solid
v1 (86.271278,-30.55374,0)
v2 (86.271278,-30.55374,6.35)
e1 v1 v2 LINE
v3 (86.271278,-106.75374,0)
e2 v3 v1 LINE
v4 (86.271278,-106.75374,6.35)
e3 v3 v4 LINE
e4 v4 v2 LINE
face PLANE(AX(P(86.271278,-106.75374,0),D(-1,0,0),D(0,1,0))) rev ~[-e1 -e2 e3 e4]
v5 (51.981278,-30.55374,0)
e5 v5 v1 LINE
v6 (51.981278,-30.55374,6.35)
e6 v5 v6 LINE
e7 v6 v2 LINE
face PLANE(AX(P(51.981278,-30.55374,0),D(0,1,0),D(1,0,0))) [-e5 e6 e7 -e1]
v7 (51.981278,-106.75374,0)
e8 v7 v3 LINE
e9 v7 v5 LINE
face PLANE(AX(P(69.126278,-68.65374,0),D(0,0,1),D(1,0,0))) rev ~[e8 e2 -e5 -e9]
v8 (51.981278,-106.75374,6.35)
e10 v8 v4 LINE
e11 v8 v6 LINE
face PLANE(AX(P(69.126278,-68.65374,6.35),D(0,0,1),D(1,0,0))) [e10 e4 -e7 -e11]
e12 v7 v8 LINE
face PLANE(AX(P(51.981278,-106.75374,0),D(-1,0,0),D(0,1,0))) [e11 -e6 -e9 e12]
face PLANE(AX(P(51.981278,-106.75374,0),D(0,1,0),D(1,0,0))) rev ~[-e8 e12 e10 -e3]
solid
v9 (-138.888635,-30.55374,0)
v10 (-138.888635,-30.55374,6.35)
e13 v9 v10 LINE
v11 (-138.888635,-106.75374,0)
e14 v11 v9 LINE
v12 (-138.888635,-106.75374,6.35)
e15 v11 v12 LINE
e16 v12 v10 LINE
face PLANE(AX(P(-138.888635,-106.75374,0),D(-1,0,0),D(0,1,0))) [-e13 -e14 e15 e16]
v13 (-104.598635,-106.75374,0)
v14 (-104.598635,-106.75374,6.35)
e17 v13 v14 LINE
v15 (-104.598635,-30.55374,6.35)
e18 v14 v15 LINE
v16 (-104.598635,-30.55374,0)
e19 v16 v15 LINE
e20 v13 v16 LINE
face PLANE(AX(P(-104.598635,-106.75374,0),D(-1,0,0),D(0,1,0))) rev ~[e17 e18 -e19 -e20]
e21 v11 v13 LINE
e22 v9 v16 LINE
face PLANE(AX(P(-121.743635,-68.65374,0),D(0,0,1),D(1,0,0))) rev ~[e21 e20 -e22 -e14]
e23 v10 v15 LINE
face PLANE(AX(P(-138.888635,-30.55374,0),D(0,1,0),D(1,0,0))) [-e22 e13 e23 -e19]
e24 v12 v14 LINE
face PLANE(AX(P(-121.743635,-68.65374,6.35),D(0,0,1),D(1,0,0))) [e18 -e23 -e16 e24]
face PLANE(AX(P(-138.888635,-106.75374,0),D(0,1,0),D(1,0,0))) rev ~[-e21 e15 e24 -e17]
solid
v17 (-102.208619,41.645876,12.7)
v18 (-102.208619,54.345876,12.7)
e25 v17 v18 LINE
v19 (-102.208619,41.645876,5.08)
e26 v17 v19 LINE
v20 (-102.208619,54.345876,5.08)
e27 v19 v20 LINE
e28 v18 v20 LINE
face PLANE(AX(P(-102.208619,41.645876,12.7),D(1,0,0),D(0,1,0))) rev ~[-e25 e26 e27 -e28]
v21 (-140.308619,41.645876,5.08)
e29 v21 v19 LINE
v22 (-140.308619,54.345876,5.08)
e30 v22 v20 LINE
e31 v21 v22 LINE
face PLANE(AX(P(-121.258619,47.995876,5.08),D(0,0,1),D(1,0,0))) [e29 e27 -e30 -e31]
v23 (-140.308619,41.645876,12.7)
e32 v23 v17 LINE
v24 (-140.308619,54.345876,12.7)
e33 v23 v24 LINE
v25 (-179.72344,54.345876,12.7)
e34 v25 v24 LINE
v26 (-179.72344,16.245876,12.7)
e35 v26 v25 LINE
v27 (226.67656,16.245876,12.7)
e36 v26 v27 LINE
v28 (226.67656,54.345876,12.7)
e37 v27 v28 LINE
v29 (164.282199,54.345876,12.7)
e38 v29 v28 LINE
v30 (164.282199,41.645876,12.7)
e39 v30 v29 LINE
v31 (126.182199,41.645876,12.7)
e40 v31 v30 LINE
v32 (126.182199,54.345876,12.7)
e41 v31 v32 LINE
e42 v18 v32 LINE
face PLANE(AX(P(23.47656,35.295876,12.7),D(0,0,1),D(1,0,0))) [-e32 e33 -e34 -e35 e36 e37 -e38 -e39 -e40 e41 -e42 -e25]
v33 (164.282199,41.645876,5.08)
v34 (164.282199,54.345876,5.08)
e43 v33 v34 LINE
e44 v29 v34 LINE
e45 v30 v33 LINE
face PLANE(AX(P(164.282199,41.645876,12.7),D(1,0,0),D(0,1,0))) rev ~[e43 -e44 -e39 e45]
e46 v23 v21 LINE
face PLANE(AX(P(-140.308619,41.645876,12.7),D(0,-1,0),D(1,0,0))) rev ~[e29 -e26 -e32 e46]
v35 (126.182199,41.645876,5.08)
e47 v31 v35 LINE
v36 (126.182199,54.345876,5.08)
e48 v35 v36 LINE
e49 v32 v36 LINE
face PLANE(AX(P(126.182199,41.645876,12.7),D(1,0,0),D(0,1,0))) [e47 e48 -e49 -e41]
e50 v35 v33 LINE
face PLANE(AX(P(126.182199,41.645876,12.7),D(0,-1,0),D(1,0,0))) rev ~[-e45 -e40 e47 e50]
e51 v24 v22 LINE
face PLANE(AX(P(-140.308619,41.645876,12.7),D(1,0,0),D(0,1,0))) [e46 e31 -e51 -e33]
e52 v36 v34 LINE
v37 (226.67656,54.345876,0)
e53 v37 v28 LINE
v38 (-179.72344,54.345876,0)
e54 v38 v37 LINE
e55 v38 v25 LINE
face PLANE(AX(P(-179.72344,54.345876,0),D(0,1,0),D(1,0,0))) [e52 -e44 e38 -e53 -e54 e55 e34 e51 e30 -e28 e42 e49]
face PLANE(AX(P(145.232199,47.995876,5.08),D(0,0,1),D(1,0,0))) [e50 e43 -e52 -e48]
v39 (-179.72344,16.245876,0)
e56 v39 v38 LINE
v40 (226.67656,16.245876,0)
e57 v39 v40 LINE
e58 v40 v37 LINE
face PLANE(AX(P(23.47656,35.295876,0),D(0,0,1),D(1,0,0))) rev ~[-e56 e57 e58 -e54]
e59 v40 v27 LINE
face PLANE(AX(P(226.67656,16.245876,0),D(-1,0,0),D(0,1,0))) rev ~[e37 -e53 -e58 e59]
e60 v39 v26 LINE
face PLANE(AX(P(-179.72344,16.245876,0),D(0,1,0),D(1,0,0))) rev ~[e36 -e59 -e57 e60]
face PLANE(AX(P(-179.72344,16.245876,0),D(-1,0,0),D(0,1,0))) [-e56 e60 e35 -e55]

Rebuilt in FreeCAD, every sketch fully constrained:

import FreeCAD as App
import Part
import Sketcher
from FreeCAD import Vector
Q = App.Units.Quantity

doc = App.newDocument("Part")
body = doc.addObject("PartDesign::Body", "Body")

# Sketch on XY plane
sketch1 = body.newObject("Sketcher::SketchObject", "Sketch")
sketch1.AttachmentSupport = (doc.getObject("XY_Plane"), [""])
sketch1.MapMode = "FlatFace"
sketch1.addGeometry([
    Part.LineSegment(Vector(-180, 54, 0), Vector(-180, 16, 0)),
    Part.LineSegment(Vector(-180, 16, 0), Vector(227, 16, 0)),
    Part.LineSegment(Vector(227, 16, 0), Vector(227, 54, 0)),
    Part.LineSegment(Vector(227, 54, 0), Vector(-180, 54, 0)),
], False)
sketch1.addConstraint([
    Sketcher.Constraint("Coincident", 0, 2, 1, 1),
    Sketcher.Constraint("Coincident", 1, 2, 2, 1),
    Sketcher.Constraint("Coincident", 2, 2, 3, 1),
    Sketcher.Constraint("Coincident", 3, 2, 0, 1),
    Sketcher.Constraint("Vertical", 0),
    Sketcher.Constraint("Horizontal", 1),
    Sketcher.Constraint("Vertical", 2),
    Sketcher.Constraint("Horizontal", 3),
    Sketcher.Constraint("DistanceX", 1, 1, 1, 2, Q("16 in")),
    Sketcher.Constraint("DistanceY", 0, 2, 0, 1, Q("1.5 in")),
    Sketcher.Constraint("DistanceX", 0, 2, -1, 1, 179.72344),
    Sketcher.Constraint("DistanceY", -1, 1, 0, 2, 16.245876),
])
pad1 = body.newObject("PartDesign::Pad", "Pad")
pad1.Profile = sketch1
pad1.Length = Q("0.5 in")

# Sketch on XY plane
sketch2 = body.newObject("Sketcher::SketchObject", "Sketch001")
sketch2.AttachmentSupport = (doc.getObject("XY_Plane"), [""])
sketch2.MapMode = "FlatFace"
sketch2.AttachmentOffset = App.Placement(Vector(0, 0, 0.5 * 25.4), App.Rotation())
sketch2.addGeometry([
    Part.LineSegment(Vector(-140, 54, 0), Vector(-140, 42, 0)),  # 0
    Part.LineSegment(Vector(-140, 42, 0), Vector(-102, 42, 0)),  # 1
    Part.LineSegment(Vector(-102, 42, 0), Vector(-102, 54, 0)),  # 2
    Part.LineSegment(Vector(-102, 54, 0), Vector(-140, 54, 0)),  # 3
    Part.LineSegment(Vector(126, 54, 0), Vector(126, 42, 0)),  # 4
    Part.LineSegment(Vector(126, 42, 0), Vector(164, 42, 0)),  # 5
    Part.LineSegment(Vector(164, 42, 0), Vector(164, 54, 0)),  # 6
    Part.LineSegment(Vector(164, 54, 0), Vector(126, 54, 0)),  # 7
], False)
sketch2.addConstraint([
    Sketcher.Constraint("Coincident", 0, 2, 1, 1),
    Sketcher.Constraint("Coincident", 1, 2, 2, 1),
    Sketcher.Constraint("Coincident", 2, 2, 3, 1),
    Sketcher.Constraint("Coincident", 3, 2, 0, 1),
    Sketcher.Constraint("Coincident", 4, 2, 5, 1),
    Sketcher.Constraint("Coincident", 5, 2, 6, 1),
    Sketcher.Constraint("Coincident", 6, 2, 7, 1),
    Sketcher.Constraint("Coincident", 7, 2, 4, 1),
    Sketcher.Constraint("Vertical", 0),
    Sketcher.Constraint("Horizontal", 1),
    Sketcher.Constraint("Vertical", 2),
    Sketcher.Constraint("Horizontal", 3),
    Sketcher.Constraint("Vertical", 4),
    Sketcher.Constraint("Horizontal", 5),
    Sketcher.Constraint("Vertical", 6),
    Sketcher.Constraint("Horizontal", 7),
    Sketcher.Constraint("Horizontal", 1, 2, 4, 2),
    Sketcher.Constraint("Horizontal", 3, 2, 6, 2),
    Sketcher.Constraint("Equal", 3, 5),
    Sketcher.Constraint("DistanceX", 1, 1, 1, 2, Q("1.5 in")),
    Sketcher.Constraint("DistanceY", 0, 2, 0, 1, Q("0.5 in")),
    Sketcher.Constraint("DistanceX", -1, 1, 4, 2, 126.182199),
    Sketcher.Constraint("DistanceX", 0, 2, -1, 1, 140.308619),
    Sketcher.Constraint("DistanceY", -1, 1, 0, 2, 41.645876),
])
pocket1 = body.newObject("PartDesign::Pocket", "Pocket")
pocket1.Profile = sketch2
pocket1.Length = Q("0.3 in")
body2 = doc.addObject("PartDesign::Body", "Body001")
body2.AllowCompound = True

# Sketch on XY plane
sketch3 = body2.newObject("Sketcher::SketchObject", "Sketch002")
sketch3.AttachmentSupport = (doc.getObject("XY_Plane001"), [""])
sketch3.MapMode = "FlatFace"
sketch3.addGeometry([
    Part.LineSegment(Vector(-139, -31, 0), Vector(-139, -107, 0)),  # 0
    Part.LineSegment(Vector(-139, -107, 0), Vector(-105, -107, 0)),  # 1
    Part.LineSegment(Vector(-105, -107, 0), Vector(-105, -31, 0)),  # 2
    Part.LineSegment(Vector(-105, -31, 0), Vector(-139, -31, 0)),  # 3
    Part.LineSegment(Vector(52, -31, 0), Vector(52, -107, 0)),  # 4
    Part.LineSegment(Vector(52, -107, 0), Vector(86, -107, 0)),  # 5
    Part.LineSegment(Vector(86, -107, 0), Vector(86, -31, 0)),  # 6
    Part.LineSegment(Vector(86, -31, 0), Vector(52, -31, 0)),  # 7
], False)
sketch3.addConstraint([
    Sketcher.Constraint("Coincident", 0, 2, 1, 1),
    Sketcher.Constraint("Coincident", 1, 2, 2, 1),
    Sketcher.Constraint("Coincident", 2, 2, 3, 1),
    Sketcher.Constraint("Coincident", 3, 2, 0, 1),
    Sketcher.Constraint("Coincident", 4, 2, 5, 1),
    Sketcher.Constraint("Coincident", 5, 2, 6, 1),
    Sketcher.Constraint("Coincident", 6, 2, 7, 1),
    Sketcher.Constraint("Coincident", 7, 2, 4, 1),
    Sketcher.Constraint("Vertical", 0),
    Sketcher.Constraint("Horizontal", 1),
    Sketcher.Constraint("Vertical", 2),
    Sketcher.Constraint("Horizontal", 3),
    Sketcher.Constraint("Vertical", 4),
    Sketcher.Constraint("Horizontal", 5),
    Sketcher.Constraint("Vertical", 6),
    Sketcher.Constraint("Horizontal", 7),
    Sketcher.Constraint("Horizontal", 1, 2, 4, 2),
    Sketcher.Constraint("Horizontal", 3, 2, 6, 2),
    Sketcher.Constraint("Equal", 3, 5),
    Sketcher.Constraint("DistanceY", 0, 2, 0, 1, Q("3 in")),
    Sketcher.Constraint("DistanceX", 1, 1, 1, 2, Q("1.35 in")),
    Sketcher.Constraint("DistanceY", 0, 2, -1, 1, 106.75374),
    Sketcher.Constraint("DistanceX", -1, 1, 4, 2, 51.981278),
    Sketcher.Constraint("DistanceX", 0, 2, -1, 1, 138.888635),
])
pad2 = body2.newObject("PartDesign::Pad", "Pad001")
pad2.Profile = sketch3
pad2.Length = Q("0.25 in")

doc.recompute()
